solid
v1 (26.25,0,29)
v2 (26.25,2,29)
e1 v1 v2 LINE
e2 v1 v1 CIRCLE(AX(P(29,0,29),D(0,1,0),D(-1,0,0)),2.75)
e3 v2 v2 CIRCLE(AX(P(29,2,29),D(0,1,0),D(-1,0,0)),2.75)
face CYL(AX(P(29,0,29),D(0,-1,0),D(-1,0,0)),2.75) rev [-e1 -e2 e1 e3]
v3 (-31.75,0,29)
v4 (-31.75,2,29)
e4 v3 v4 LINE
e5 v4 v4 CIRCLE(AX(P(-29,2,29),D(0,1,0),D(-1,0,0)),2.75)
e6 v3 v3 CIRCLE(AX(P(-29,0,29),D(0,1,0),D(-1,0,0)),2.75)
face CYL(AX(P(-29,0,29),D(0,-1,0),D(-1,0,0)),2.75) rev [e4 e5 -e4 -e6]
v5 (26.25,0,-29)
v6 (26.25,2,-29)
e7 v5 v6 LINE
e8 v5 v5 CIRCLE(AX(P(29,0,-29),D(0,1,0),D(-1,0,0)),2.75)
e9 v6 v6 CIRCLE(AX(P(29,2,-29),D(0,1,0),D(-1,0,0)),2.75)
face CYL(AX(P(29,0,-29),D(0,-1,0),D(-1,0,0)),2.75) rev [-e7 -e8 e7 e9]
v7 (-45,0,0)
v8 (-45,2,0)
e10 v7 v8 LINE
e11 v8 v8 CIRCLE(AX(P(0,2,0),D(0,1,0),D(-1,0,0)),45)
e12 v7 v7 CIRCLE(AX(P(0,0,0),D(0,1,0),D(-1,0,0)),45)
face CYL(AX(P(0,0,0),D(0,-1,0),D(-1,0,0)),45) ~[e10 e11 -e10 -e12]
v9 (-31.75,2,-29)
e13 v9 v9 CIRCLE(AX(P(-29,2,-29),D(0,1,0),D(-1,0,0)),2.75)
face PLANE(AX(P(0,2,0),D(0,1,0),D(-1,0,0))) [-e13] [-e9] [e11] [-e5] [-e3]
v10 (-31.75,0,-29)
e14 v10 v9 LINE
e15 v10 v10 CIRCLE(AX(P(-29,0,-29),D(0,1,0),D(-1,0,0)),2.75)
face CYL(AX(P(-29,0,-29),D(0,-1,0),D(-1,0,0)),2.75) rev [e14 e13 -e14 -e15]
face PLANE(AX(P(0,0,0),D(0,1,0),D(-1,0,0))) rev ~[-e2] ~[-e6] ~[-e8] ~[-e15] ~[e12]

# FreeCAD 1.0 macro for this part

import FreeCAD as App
import Part
import Sketcher
from FreeCAD import Vector

doc = App.newDocument("Part")
body = doc.addObject("PartDesign::Body", "Body")

sketch1 = doc.addObject("Sketcher::SketchObject", "Sketch")
body.addObject(sketch1)
sketch1.AttachmentSupport = (doc.XZ_Plane, [""])
sketch1.MapMode = "FlatFace"
sketch1.addGeometry([
    Part.Circle(Vector(0, 0, 0), Vector(0, 0, 1), 45),
    Part.Circle(Vector(29, -29, 0), Vector(0, 0, 1), 2.8),
    Part.Circle(Vector(-29, -29, 0), Vector(0, 0, 1), 2.8),
    Part.Circle(Vector(29, 29, 0), Vector(0, 0, 1), 2.8),
    Part.Circle(Vector(-29, 29, 0), Vector(0, 0, 1), 2.8),
], False)
sketch1.addConstraint([
    Sketcher.Constraint("Coincident", 0, 3, -1, 1),
    Sketcher.Constraint("Equal", 1, 2),
    Sketcher.Constraint("Equal", 2, 3),
    Sketcher.Constraint("Equal", 3, 4),
    Sketcher.Constraint("Symmetric", 2, 3, 3, 3, -1, 1),
    Sketcher.Constraint("Symmetric", 1, 3, 4, 3, -1, 1),
    Sketcher.Constraint("Symmetric", 1, 3, 2, 3, -2),
    Sketcher.Constraint("Diameter", 0, 90.0),
    Sketcher.Constraint("Diameter", 1, 5.5),
    Sketcher.Constraint("DistanceX", -1, 1, 1, 3, 29.0),
    Sketcher.Constraint("DistanceY", 1, 3, -1, 1, 29.0),
])
pad1 = doc.addObject("PartDesign::Pad", "Pad")
body.addObject(pad1)
pad1.Profile = sketch1
pad1.Length = 2
pad1.Reversed = True

doc.recompute()
